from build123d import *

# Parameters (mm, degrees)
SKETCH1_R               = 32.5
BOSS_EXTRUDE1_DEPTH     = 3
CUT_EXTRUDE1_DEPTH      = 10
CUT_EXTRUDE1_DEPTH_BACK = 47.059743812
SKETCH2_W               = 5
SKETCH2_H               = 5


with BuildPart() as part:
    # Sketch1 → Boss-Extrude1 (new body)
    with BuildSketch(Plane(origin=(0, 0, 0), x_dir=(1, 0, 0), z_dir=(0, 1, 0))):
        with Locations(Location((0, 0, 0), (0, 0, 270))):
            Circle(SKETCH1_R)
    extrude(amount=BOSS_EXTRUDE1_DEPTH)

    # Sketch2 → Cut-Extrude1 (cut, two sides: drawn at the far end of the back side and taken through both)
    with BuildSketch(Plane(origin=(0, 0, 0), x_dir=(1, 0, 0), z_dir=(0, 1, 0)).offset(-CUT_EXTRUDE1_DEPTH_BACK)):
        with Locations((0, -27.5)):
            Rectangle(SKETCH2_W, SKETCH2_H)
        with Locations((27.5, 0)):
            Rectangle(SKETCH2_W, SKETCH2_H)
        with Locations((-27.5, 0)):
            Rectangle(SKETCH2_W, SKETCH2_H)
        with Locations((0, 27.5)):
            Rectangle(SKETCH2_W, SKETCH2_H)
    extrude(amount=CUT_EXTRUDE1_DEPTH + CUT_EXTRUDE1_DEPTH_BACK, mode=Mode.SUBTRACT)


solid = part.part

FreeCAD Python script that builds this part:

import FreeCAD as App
import Part
import Sketcher

V = App.Vector


def add_polygon(sketch, points):
    """Adds a closed chain of lines whose ends are joined by coincident constraints."""
    first, n = sketch.GeometryCount, len(points)
    for a, b in zip(points, points[1:] + points[:1]):
        sketch.addGeometry(Part.LineSegment(App.Vector(*a, 0), App.Vector(*b, 0)), False)
    for i in range(n):
        sketch.addConstraint(Sketcher.Constraint("Coincident", first + i, 2, first + (i + 1) % n, 1))

doc = App.newDocument("Part")
params = doc.addObject("Spreadsheet::Sheet", "Params")
for row, (alias, value) in enumerate([
    ("sketch1_diameter", "65 mm"),
    ("pad1_length", "3 mm"),
    ("sketch2_width", "5 mm"),
], start=1):
    params.set(f"A{row}", alias)
    params.set(f"B{row}", "=" + value)
    params.setAlias(f"B{row}", alias)

body = doc.addObject("PartDesign::Body", "Body")

# Sketch on XZ plane
sketch1 = body.newObject("Sketcher::SketchObject", "Sketch")
sketch1.AttachmentSupport = (doc.getObject("XZ_Plane"), [""])
sketch1.MapMode = "FlatFace"
sketch1.addGeometry(Part.Circle(V(0, 0, 0), V(0, 0, 1), 32), False)
sketch1.addConstraint([
    Sketcher.Constraint("Coincident", 0, 3, -1, 1),
    Sketcher.Constraint("Diameter", 0, 65.0),
])
sketch1.setExpression("Constraints[1]", "Params.sketch1_diameter")
pad1 = body.newObject("PartDesign::Pad", "Pad")
pad1.Profile = sketch1
pad1.setExpression("Length", "Params.pad1_length")
pad1.Reversed = True

# Sketch on XZ plane
sketch2 = body.newObject("Sketcher::SketchObject", "Sketch001")
sketch2.AttachmentSupport = (doc.getObject("XZ_Plane"), [""])
sketch2.MapMode = "FlatFace"
add_polygon(sketch2, [(-2, 25), (-2, 30), (2, 30), (2, 25)])  # lines 0-3
add_polygon(sketch2, [(25, -2), (25, 2), (30, 2), (30, -2)])  # lines 4-7
add_polygon(sketch2, [(-30, -2), (-30, 2), (-25, 2), (-25, -2)])  # lines 8-11
add_polygon(sketch2, [(-2, -30), (-2, -25), (2, -25), (2, -30)])  # lines 12-15
sketch2.addConstraint([
    Sketcher.Constraint("Vertical", 0),
    Sketcher.Constraint("Horizontal", 1),
    Sketcher.Constraint("Vertical", 2),
    Sketcher.Constraint("Horizontal", 3),
    Sketcher.Constraint("Vertical", 4),
    Sketcher.Constraint("Horizontal", 5),
    Sketcher.Constraint("Vertical", 6),
    Sketcher.Constraint("Horizontal", 7),
    Sketcher.Constraint("Vertical", 8),
    Sketcher.Constraint("Horizontal", 9),
    Sketcher.Constraint("Vertical", 10),
    Sketcher.Constraint("Horizontal", 11),
    Sketcher.Constraint("Vertical", 12),
    Sketcher.Constraint("Horizontal", 13),
    Sketcher.Constraint("Vertical", 14),
    Sketcher.Constraint("Horizontal", 15),
    Sketcher.Constraint("Symmetric", 6, 2, 8, 2, -1, 1),
    Sketcher.Constraint("Symmetric", 4, 2, 10, 2, -1, 1),
    Sketcher.Constraint("Symmetric", 2, 2, 12, 2, -1, 1),
    Sketcher.Constraint("Symmetric", 0, 2, 14, 2, -1, 1),
    Sketcher.Constraint("Horizontal", 5, 2, 8, 2),
    Sketcher.Constraint("Vertical", 3, 2, 12, 2),
    Sketcher.Constraint("Equal", 3, 5),
    Sketcher.Constraint("Equal", 15, 0),
    Sketcher.Constraint("Equal", 2, 4),
    Sketcher.Constraint("DistanceX", 1, 1, 1, 2, 5.0),
    Sketcher.Constraint("DistanceY", -1, 1, 0, 2, 30.0),
    Sketcher.Constraint("DistanceX", -1, 1, 4, 2, 25.0),
])
sketch2.setExpression("Constraints[41]", "Params.sketch2_width")
pocket1 = body.newObject("PartDesign::Pocket", "Pocket")
pocket1.Profile = sketch2
pocket1.Type = "ThroughAll"
pocket1.Midplane = True

doc.recompute()
